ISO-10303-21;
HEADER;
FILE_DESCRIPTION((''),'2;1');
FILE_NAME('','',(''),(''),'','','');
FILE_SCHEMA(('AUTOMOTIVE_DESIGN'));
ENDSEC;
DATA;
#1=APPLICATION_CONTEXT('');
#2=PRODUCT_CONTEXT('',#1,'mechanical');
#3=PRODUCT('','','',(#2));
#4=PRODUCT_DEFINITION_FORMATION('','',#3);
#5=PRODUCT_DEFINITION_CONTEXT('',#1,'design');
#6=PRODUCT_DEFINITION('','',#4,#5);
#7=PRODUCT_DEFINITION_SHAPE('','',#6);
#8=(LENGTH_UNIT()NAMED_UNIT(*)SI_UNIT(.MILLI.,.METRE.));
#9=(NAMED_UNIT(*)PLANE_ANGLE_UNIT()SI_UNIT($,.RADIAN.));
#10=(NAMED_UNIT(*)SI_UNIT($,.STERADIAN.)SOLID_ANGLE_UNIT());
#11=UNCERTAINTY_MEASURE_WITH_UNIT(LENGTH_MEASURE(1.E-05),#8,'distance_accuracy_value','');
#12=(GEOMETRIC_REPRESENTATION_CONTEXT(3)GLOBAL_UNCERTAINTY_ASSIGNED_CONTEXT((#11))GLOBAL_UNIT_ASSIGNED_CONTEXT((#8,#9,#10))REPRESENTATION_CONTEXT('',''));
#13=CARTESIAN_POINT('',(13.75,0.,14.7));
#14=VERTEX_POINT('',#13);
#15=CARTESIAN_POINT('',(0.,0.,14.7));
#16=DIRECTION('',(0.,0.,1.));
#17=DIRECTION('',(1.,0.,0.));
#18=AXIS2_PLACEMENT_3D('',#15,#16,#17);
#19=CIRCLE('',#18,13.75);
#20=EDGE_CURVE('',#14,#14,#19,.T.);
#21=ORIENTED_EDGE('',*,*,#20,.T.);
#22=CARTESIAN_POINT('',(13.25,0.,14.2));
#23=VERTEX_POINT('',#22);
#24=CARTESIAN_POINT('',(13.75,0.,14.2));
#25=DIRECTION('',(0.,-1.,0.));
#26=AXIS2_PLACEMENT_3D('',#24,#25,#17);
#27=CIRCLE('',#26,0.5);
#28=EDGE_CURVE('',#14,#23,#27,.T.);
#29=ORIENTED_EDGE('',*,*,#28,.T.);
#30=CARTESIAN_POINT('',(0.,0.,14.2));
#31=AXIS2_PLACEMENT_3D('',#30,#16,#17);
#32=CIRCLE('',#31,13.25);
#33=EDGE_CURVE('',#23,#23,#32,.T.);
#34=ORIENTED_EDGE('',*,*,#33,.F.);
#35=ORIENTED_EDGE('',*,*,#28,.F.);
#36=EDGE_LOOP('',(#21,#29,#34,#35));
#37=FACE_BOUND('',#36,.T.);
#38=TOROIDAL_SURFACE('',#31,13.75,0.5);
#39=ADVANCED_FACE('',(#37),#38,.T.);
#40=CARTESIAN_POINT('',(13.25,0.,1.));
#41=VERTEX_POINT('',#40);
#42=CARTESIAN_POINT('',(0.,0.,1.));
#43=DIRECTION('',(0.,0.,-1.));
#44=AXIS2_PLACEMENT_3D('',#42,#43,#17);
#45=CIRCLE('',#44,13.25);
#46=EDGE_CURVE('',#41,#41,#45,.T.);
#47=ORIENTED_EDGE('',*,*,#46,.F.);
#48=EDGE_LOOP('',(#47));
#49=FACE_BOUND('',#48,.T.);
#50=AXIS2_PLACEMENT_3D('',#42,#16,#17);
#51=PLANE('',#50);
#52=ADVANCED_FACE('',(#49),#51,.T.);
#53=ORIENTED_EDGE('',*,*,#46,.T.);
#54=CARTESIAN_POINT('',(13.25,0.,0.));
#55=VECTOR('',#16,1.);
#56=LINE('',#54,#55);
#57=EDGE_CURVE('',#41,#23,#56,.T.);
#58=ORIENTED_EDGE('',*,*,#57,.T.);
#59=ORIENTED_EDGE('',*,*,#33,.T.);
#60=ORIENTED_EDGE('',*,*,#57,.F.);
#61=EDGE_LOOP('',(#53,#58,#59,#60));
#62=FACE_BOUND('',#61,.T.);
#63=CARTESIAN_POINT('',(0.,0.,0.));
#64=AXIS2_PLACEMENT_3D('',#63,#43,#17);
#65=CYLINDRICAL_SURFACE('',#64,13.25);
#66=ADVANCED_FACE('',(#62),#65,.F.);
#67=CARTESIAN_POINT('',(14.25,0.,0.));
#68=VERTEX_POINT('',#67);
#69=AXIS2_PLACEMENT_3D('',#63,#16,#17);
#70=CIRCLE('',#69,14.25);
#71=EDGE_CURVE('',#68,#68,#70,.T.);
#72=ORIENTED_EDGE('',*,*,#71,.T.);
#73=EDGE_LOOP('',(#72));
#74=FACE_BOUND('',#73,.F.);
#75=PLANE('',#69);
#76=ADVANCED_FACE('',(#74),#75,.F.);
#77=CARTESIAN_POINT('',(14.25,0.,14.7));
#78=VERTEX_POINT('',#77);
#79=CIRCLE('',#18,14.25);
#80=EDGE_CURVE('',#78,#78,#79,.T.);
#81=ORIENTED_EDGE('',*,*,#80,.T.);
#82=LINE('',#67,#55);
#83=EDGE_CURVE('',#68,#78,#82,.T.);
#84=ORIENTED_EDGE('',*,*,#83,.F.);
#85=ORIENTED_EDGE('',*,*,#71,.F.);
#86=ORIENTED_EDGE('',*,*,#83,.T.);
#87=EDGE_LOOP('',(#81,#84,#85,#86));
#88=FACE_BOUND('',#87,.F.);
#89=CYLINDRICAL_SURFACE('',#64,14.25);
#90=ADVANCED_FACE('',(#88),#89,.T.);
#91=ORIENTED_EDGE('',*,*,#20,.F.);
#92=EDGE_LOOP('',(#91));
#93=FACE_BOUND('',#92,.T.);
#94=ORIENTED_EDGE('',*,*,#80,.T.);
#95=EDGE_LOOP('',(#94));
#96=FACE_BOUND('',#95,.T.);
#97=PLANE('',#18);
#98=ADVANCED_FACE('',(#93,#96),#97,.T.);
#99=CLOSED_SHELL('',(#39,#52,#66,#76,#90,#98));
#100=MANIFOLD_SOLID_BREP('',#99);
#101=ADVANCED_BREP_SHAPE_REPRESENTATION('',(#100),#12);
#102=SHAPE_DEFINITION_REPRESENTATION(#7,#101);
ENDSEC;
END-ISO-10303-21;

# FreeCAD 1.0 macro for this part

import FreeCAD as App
import Part
import Sketcher
Q = App.Units.Quantity


def edges_at(feature, points):
    """Names of the edges that pass closest to the given points."""
    edges = feature.Shape.Edges
    near = lambda p: min(range(len(edges)), key=lambda i: edges[i].distToShape(Part.Vertex(*p))[0])
    return sorted({f"Edge{near(p) + 1}" for p in points})


def faces_at(feature, points):
    """Names of the faces that lie closest to the given points."""
    faces = feature.Shape.Faces
    near = lambda p: min(range(len(faces)), key=lambda i: faces[i].distToShape(Part.Vertex(*p))[0])
    return sorted({f"Face{near(p) + 1}" for p in points})

doc = App.newDocument("Part")
body = doc.addObject("PartDesign::Body", "Body")

# Sketch on XY plane
sketch1 = body.newObject("Sketcher::SketchObject", "Sketch")
sketch1.AttachmentSupport = (doc.getObject("XY_Plane"), [""])
sketch1.MapMode = "FlatFace"
sketch1.addGeometry(Part.Circle(App.Vector(0, 0, 0), App.Vector(0, 0, 1), 14), False)
sketch1.addConstraint(Sketcher.Constraint("Coincident", 0, 3, -1, 1))
sketch1.addConstraint(Sketcher.Constraint("Diameter", 0, Q("28.5 mm")))
pad1 = body.newObject("PartDesign::Pad", "Pad")
pad1.Profile = sketch1
pad1.Length = 14.7
doc.recompute()

thickness = body.newObject("PartDesign::Thickness", "Thickness")
thickness.Base = (pad1, faces_at(pad1, [(0, 0, 14.7)]))
thickness.Value = 1
thickness.Reversed = True
thickness.Join = "Arc"
doc.recompute()

fillet = body.newObject("PartDesign::Fillet", "Fillet")
fillet.Base = (thickness, edges_at(thickness, [(-13.25, 0, 14.7)]))
fillet.Radius = 0.5

doc.recompute()
